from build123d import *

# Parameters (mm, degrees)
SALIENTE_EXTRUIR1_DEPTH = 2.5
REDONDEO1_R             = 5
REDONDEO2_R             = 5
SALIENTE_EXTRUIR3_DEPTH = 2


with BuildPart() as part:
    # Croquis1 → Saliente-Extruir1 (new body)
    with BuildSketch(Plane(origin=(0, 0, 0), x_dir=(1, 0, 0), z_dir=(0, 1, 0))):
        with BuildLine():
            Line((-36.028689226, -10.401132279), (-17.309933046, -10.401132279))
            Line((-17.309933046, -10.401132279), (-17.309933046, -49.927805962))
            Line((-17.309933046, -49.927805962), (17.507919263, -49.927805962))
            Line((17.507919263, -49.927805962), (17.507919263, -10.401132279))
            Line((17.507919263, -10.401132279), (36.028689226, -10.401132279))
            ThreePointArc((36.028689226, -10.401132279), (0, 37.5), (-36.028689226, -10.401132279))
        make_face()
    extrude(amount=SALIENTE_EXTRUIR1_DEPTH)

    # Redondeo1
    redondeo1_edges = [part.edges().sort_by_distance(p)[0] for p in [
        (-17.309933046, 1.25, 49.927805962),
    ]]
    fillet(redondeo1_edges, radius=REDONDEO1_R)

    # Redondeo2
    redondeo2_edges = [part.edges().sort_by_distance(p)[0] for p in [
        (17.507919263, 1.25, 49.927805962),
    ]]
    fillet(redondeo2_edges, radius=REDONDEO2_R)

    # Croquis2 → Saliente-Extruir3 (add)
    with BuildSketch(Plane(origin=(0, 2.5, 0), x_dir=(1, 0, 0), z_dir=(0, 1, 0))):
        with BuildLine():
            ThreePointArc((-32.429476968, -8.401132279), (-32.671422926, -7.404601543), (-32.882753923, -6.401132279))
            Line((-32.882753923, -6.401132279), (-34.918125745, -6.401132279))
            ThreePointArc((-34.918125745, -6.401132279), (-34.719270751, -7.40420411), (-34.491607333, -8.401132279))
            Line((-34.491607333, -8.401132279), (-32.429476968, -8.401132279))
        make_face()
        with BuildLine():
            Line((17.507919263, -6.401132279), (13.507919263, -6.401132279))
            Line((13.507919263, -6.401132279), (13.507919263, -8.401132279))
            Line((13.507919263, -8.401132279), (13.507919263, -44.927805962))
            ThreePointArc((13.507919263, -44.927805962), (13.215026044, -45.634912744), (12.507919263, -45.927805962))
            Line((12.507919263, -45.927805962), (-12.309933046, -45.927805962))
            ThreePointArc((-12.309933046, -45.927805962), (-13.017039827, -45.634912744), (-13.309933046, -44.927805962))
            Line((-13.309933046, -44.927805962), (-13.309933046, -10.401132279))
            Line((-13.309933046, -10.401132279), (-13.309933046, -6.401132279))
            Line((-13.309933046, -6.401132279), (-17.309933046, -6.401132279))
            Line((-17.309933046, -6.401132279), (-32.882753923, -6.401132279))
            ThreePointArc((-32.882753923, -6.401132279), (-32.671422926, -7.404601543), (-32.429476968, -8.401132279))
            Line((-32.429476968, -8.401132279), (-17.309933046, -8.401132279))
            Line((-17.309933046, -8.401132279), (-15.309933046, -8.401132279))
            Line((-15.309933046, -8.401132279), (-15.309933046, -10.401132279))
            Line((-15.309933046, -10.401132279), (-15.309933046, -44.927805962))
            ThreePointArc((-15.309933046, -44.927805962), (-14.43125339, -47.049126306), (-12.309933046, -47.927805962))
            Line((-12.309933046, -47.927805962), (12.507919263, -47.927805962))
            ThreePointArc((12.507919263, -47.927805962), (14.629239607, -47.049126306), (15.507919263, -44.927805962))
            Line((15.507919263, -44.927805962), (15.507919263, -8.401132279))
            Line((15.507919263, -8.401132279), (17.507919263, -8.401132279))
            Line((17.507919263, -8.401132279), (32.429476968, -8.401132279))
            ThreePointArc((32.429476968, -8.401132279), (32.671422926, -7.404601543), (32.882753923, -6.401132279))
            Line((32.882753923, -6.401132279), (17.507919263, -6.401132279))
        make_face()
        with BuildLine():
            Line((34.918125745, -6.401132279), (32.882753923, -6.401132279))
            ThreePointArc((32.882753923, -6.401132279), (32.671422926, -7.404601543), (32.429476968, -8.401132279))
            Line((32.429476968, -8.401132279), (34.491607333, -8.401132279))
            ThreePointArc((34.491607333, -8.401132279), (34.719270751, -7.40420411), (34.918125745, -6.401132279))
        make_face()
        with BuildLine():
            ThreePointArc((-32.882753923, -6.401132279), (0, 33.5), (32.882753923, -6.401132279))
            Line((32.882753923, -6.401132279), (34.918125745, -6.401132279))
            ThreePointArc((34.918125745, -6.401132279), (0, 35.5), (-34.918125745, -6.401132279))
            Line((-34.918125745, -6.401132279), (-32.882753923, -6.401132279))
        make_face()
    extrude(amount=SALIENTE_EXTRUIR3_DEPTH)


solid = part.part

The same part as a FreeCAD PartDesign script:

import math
import FreeCAD as App
import Part
import Sketcher


def edges_at(feature, points):
    """Names of the edges that pass closest to the given points."""
    edges = feature.Shape.Edges
    near = lambda p: min(range(len(edges)), key=lambda i: edges[i].distToShape(Part.Vertex(*p))[0])
    return sorted({f"Edge{near(p) + 1}" for p in points})

doc = App.newDocument("Part")
body = doc.addObject("PartDesign::Body", "Body")

# Sketch on XZ plane
sketch1 = body.newObject("Sketcher::SketchObject", "Sketch")
sketch1.AttachmentSupport = (doc.getObject("XZ_Plane"), [""])
sketch1.MapMode = "FlatFace"
sketch1.addGeometry([
    Part.LineSegment(App.Vector(-36, 10, 0), App.Vector(-17, 10, 0)),  # 0
    Part.LineSegment(App.Vector(-17, 10, 0), App.Vector(-17, 50, 0)),  # 1
    Part.LineSegment(App.Vector(-17, 50, 0), App.Vector(18, 50, 0)),  # 2
    Part.LineSegment(App.Vector(18, 50, 0), App.Vector(18, 10, 0)),  # 3
    Part.LineSegment(App.Vector(18, 10, 0), App.Vector(36, 10, 0)),  # 4
    Part.ArcOfCircle(Part.Circle(App.Vector(0, 0, 0), App.Vector(0, 0, 1), 38), math.radians(164), math.radians(376)),  # 5
], False)
sketch1.addConstraint([
    Sketcher.Constraint("Coincident", 0, 2, 1, 1),
    Sketcher.Constraint("Coincident", 1, 2, 2, 1),
    Sketcher.Constraint("Coincident", 2, 2, 3, 1),
    Sketcher.Constraint("Coincident", 3, 2, 4, 1),
    Sketcher.Constraint("Coincident", 4, 2, 5, 2),
    Sketcher.Constraint("Coincident", 5, 1, 0, 1),
    Sketcher.Constraint("Horizontal", 0),
    Sketcher.Constraint("Vertical", 1),
    Sketcher.Constraint("Horizontal", 2),
    Sketcher.Constraint("Vertical", 3),
    Sketcher.Constraint("Horizontal", 4),
    Sketcher.Constraint("Coincident", 5, 3, -1, 1),
    Sketcher.Constraint("Horizontal", 0, 2, 3, 2),
    Sketcher.Constraint("Radius", 5, 37.5),
    Sketcher.Constraint("DistanceX", 4, 1, 4, 2, 18.52077),
    Sketcher.Constraint("DistanceX", 0, 1, 0, 2, 18.718756),
    Sketcher.Constraint("DistanceX", 2, 1, 2, 2, 34.817852),
    Sketcher.Constraint("DistanceY", 1, 1, 1, 2, 39.526674),
])
pad1 = body.newObject("PartDesign::Pad", "Pad")
pad1.Profile = sketch1
pad1.Length = 2.5
pad1.Reversed = True
doc.recompute()

fillet = body.newObject("PartDesign::Fillet", "Fillet")
fillet.Base = (pad1, edges_at(pad1, [(-17.31, 1.25, 49.928)]))
fillet.Radius = 5
doc.recompute()

fillet2 = body.newObject("PartDesign::Fillet", "Fillet001")
fillet2.Base = (fillet, edges_at(fillet, [(17.508, 1.25, 49.928)]))
fillet2.Radius = 5

# Sketch on XZ plane
sketch2 = body.newObject("Sketcher::SketchObject", "Sketch001")
sketch2.AttachmentSupport = (doc.getObject("XZ_Plane"), [""])
sketch2.MapMode = "FlatFace"
sketch2.AttachmentOffset = App.Placement(App.Vector(0, 0, -2.5), App.Rotation())
sketch2.addGeometry([
    Part.ArcOfCircle(Part.Circle(App.Vector(0, 0, 0), App.Vector(0, 0, 1), 35.5), math.radians(166.31), math.radians(169.61)),  # 0
    Part.LineSegment(App.Vector(-34.5, 8.4, 0), App.Vector(-15.3, 8.4, 0)),  # 1
    Part.LineSegment(App.Vector(-15.3, 8.4, 0), App.Vector(-15.3, 44.9, 0)),  # 2
    Part.ArcOfCircle(Part.Circle(App.Vector(-12.3, 44.9, 0), App.Vector(0, 0, 1), 3), math.radians(90), math.radians(180)),  # 3
    Part.LineSegment(App.Vector(-12.3, 47.9, 0), App.Vector(12.5, 47.9, 0)),  # 4
    Part.ArcOfCircle(Part.Circle(App.Vector(12.5, 44.9, 0), App.Vector(0, 0, 1), 3), math.radians(0), math.radians(90)),  # 5
    Part.LineSegment(App.Vector(15.5, 44.9, 0), App.Vector(15.5, 8.4, 0)),  # 6
    Part.LineSegment(App.Vector(15.5, 8.4, 0), App.Vector(34.5, 8.4, 0)),  # 7
    Part.ArcOfCircle(Part.Circle(App.Vector(0, 0, 0), App.Vector(0, 0, 1), 35.5), math.radians(10.39), math.radians(13.69)),  # 8
    Part.ArcOfCircle(Part.Circle(App.Vector(0, 0, 0), App.Vector(0, 0, 1), 35.5), math.radians(170), math.radians(370)),  # 9
    Part.LineSegment(App.Vector(32.9, 6.4, 0), App.Vector(13.5, 6.4, 0)),  # 10
    Part.LineSegment(App.Vector(13.5, 6.4, 0), App.Vector(13.5, 44.9, 0)),  # 11
    Part.ArcOfCircle(Part.Circle(App.Vector(12.5, 44.9, 0), App.Vector(0, 0, 1), 1), math.radians(0), math.radians(90)),  # 12
    Part.LineSegment(App.Vector(12.5, 45.9, 0), App.Vector(-12.3, 45.9, 0)),  # 13
    Part.ArcOfCircle(Part.Circle(App.Vector(-12.3, 44.9, 0), App.Vector(0, 0, 1), 1), math.radians(90), math.radians(180)),  # 14
    Part.LineSegment(App.Vector(-13.3, 44.9, 0), App.Vector(-13.3, 6.4, 0)),  # 15
    Part.LineSegment(App.Vector(-13.3, 6.4, 0), App.Vector(-32.9, 6.4, 0)),  # 16
    Part.ArcOfCircle(Part.Circle(App.Vector(0, 0, 0), App.Vector(0, 0, 1), 33.5), math.radians(169), math.radians(371)),  # 17
], False)
sketch2.addConstraint([
    Sketcher.Constraint("Coincident", 0, 1, 1, 1),
    Sketcher.Constraint("Coincident", 1, 2, 2, 1),
    Sketcher.Constraint("Tangent", 2, 2, 3, 2),
    Sketcher.Constraint("Tangent", 3, 1, 4, 1),
    Sketcher.Constraint("Tangent", 4, 2, 5, 2),
    Sketcher.Constraint("Tangent", 5, 1, 6, 1),
    Sketcher.Constraint("Coincident", 6, 2, 7, 1),
    Sketcher.Constraint("Coincident", 7, 2, 8, 2),
    Sketcher.Constraint("Tangent", 8, 1, 9, 2),
    Sketcher.Constraint("Tangent", 9, 1, 0, 2),
    Sketcher.Constraint("Coincident", 10, 2, 11, 1),
    Sketcher.Constraint("Tangent", 11, 2, 12, 1),
    Sketcher.Constraint("Tangent", 12, 2, 13, 1),
    Sketcher.Constraint("Tangent", 13, 2, 14, 1),
    Sketcher.Constraint("Tangent", 14, 2, 15, 1),
    Sketcher.Constraint("Coincident", 15, 2, 16, 1),
    Sketcher.Constraint("Coincident", 16, 2, 17, 1),
    Sketcher.Constraint("Coincident", 17, 2, 10, 1),
    Sketcher.Constraint("Horizontal", 1),
    Sketcher.Constraint("Vertical", 2),
    Sketcher.Constraint("Horizontal", 4),
    Sketcher.Constraint("Vertical", 6),
    Sketcher.Constraint("Horizontal", 7),
    Sketcher.Constraint("Horizontal", 10),
    Sketcher.Constraint("Vertical", 11),
    Sketcher.Constraint("Horizontal", 13),
    Sketcher.Constraint("Vertical", 15),
    Sketcher.Constraint("Horizontal", 16),
    Sketcher.Constraint("Coincident", 0, 3, -1, 1),
    Sketcher.Constraint("Coincident", 8, 3, -1, 1),
    Sketcher.Constraint("Coincident", 17, 3, -1, 1),
    Sketcher.Constraint("Coincident", 12, 3, 5, 3),
    Sketcher.Constraint("Coincident", 14, 3, 3, 3),
    Sketcher.Constraint("Equal", 3, 5),
    Sketcher.Constraint("Horizontal", 1, 2, 6, 2),
    Sketcher.Constraint("Horizontal", 8, 1, 9, 1),
    Sketcher.Constraint("Horizontal", 9, 1, 10, 2),
    Sketcher.Constraint("Horizontal", 10, 2, 15, 2),
    Sketcher.Constraint("Radius", 3, 3.0),
    Sketcher.Constraint("Radius", 12, 1.0),
    Sketcher.Constraint("Radius", 0, 35.5),
    Sketcher.Constraint("Radius", 17, 33.5),
    Sketcher.Constraint("DistanceY", 8, 1, 7, 2, 2.0),
    Sketcher.Constraint("DistanceX", 7, 1, 7, 2, 18.983688),
    Sketcher.Constraint("DistanceX", 16, 2, 16, 1, 19.572821),
    Sketcher.Constraint("DistanceX", 1, 1, 1, 2, 19.181674),
    Sketcher.Constraint("DistanceY", 2, 1, 2, 2, 36.526674),
])
pad2 = body.newObject("PartDesign::Pad", "Pad001")
pad2.Profile = sketch2
pad2.Length = 2
pad2.Reversed = True

doc.recompute()
